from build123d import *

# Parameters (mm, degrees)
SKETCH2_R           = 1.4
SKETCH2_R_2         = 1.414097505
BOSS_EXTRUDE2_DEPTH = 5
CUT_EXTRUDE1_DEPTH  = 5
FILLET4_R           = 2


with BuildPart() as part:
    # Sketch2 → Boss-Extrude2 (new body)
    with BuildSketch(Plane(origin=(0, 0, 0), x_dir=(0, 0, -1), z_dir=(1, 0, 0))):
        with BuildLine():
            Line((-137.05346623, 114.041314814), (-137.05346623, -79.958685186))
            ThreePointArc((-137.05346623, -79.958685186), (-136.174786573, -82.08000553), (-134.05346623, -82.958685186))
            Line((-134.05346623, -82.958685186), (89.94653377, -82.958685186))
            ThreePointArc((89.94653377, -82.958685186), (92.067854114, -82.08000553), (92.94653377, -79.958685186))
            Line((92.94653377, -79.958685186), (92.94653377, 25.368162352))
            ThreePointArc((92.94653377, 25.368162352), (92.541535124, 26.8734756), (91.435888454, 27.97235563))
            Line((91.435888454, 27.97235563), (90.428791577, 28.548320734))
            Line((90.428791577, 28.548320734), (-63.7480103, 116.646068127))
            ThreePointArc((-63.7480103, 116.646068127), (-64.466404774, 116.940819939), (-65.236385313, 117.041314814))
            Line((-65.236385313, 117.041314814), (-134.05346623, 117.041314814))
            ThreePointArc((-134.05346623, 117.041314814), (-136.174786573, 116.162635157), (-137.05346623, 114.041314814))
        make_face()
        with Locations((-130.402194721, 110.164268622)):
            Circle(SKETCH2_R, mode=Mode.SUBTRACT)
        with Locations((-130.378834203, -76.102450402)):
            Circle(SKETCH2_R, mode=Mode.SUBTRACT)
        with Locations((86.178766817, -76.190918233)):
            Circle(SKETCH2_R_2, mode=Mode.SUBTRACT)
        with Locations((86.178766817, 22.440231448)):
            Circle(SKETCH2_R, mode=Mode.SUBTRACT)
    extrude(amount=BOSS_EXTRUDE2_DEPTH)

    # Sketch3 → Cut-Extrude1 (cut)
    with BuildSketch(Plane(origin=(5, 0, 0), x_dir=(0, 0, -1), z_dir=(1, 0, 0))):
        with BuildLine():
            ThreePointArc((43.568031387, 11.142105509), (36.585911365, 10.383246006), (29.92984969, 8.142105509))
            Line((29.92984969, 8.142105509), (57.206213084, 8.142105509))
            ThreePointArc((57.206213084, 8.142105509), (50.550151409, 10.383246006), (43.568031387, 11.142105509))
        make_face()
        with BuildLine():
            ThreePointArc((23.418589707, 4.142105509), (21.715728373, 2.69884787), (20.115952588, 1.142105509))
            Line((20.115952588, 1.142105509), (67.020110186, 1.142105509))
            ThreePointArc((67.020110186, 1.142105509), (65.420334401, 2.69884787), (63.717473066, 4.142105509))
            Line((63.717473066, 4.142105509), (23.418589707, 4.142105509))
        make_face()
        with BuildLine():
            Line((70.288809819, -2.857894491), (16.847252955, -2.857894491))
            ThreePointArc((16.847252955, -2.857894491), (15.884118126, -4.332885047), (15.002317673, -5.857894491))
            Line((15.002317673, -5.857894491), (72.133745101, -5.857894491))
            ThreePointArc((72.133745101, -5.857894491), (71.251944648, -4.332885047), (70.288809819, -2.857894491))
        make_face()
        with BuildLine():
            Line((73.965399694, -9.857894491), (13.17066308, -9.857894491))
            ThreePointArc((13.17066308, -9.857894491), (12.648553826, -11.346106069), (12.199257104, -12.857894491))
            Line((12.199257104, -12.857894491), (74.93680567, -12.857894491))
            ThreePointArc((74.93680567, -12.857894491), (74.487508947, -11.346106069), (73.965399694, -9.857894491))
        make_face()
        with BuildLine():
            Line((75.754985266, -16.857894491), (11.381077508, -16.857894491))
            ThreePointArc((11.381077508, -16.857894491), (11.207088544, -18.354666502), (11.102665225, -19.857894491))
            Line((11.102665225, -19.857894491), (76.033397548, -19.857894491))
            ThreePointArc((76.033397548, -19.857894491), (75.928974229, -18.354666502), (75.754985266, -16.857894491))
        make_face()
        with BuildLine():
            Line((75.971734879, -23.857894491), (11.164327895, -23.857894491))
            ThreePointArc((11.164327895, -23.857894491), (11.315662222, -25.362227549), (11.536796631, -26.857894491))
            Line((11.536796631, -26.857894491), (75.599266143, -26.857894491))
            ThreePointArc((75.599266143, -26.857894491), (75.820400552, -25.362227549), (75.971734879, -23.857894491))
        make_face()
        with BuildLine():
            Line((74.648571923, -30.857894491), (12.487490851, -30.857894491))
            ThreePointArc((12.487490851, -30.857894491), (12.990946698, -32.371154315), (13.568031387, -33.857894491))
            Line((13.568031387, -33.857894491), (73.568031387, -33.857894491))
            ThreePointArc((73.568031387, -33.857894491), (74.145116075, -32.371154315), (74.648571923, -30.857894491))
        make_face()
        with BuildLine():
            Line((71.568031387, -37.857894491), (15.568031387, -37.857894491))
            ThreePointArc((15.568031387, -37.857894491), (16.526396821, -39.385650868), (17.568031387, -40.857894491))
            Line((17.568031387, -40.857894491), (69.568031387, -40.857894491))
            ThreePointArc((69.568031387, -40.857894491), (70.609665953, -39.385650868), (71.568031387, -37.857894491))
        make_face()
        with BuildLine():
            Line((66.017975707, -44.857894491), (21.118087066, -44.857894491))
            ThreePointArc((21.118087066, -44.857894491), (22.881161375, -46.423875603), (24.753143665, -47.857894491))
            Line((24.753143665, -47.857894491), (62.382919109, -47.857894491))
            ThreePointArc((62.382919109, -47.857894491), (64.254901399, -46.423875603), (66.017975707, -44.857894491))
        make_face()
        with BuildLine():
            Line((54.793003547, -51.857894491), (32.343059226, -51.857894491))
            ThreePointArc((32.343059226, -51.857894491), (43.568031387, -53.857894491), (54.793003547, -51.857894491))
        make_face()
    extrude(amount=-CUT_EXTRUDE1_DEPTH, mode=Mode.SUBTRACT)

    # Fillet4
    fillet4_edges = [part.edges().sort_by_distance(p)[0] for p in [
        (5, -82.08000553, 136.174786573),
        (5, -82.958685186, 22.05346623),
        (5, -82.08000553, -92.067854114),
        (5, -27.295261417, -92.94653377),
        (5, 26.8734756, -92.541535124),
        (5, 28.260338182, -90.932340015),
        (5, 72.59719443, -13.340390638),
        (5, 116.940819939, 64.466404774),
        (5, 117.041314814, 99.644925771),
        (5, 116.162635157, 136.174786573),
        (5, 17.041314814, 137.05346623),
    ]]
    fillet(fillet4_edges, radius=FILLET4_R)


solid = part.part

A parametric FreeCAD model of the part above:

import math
import FreeCAD as App
import Part
import Sketcher
from FreeCAD import Vector
Q = App.Units.Quantity


def edges_at(feature, points):
    """Names of the edges that pass closest to the given points."""
    edges = feature.Shape.Edges
    near = lambda p: min(range(len(edges)), key=lambda i: edges[i].distToShape(Part.Vertex(*p))[0])
    return sorted({f"Edge{near(p) + 1}" for p in points})

doc = App.newDocument("Part")
body = doc.addObject("PartDesign::Body", "Body")

# Sketch on YZ plane
sketch1 = body.newObject("Sketcher::SketchObject", "Sketch")
sketch1.AttachmentSupport = (doc.getObject("YZ_Plane"), [""])
sketch1.MapMode = "FlatFace"
sketch1.addGeometry(Part.LineSegment(Vector(114, 137.1, 0), Vector(-80, 137.1, 0)), False)
sketch1.addGeometry(Part.ArcOfCircle(Part.Circle(Vector(-80, 134.1, 0), Vector(0, 0, 1), 3), math.radians(90), math.radians(180)), False)
sketch1.addGeometry(Part.LineSegment(Vector(-83, 134.1, 0), Vector(-83, -89.9, 0)), False)
sketch1.addGeometry(Part.ArcOfCircle(Part.Circle(Vector(-80, -89.9, 0), Vector(0, 0, 1), 3), math.radians(180), math.radians(270)), False)
sketch1.addGeometry(Part.LineSegment(Vector(-80, -92.9, 0), Vector(25.4, -92.9, 0)), False)
sketch1.addGeometry(Part.ArcOfCircle(Part.Circle(Vector(25.4, -89.9, 0), Vector(0, 0, 1), 3), math.radians(-90), math.radians(-30)), False)
sketch1.addGeometry(Part.LineSegment(Vector(28, -91.4, 0), Vector(28.5, -90.4, 0)), False)
sketch1.addGeometry(Part.LineSegment(Vector(28.5, -90.4, 0), Vector(116.6, 63.7, 0)), False)
sketch1.addGeometry(Part.ArcOfCircle(Part.Circle(Vector(114, 65.2, 0), Vector(0, 0, 1), 3), math.radians(-30), math.radians(0)), False)
sketch1.addGeometry(Part.LineSegment(Vector(117, 65.2, 0), Vector(117, 134.1, 0)), False)
sketch1.addGeometry(Part.ArcOfCircle(Part.Circle(Vector(114, 134.1, 0), Vector(0, 0, 1), 3), math.radians(0), math.radians(90)), False)
sketch1.addGeometry(Part.Circle(Vector(-76.1, 130.4, 0), Vector(0, 0, 1), 1.4), False)
sketch1.addGeometry(Part.Circle(Vector(-76.2, -86.2, 0), Vector(0, 0, 1), 1.4), False)
sketch1.addGeometry(Part.Circle(Vector(110.2, 130.4, 0), Vector(0, 0, 1), 1.4), False)
sketch1.addGeometry(Part.Circle(Vector(22.4, -86.2, 0), Vector(0, 0, 1), 1.4), False)
sketch1.addConstraint(Sketcher.Constraint("Tangent", 0, 2, 1, 1))
sketch1.addConstraint(Sketcher.Constraint("Tangent", 1, 2, 2, 1))
sketch1.addConstraint(Sketcher.Constraint("Tangent", 2, 2, 3, 1))
sketch1.addConstraint(Sketcher.Constraint("Tangent", 3, 2, 4, 1))
sketch1.addConstraint(Sketcher.Constraint("Tangent", 4, 2, 5, 1))
sketch1.addConstraint(Sketcher.Constraint("Tangent", 5, 2, 6, 1))
sketch1.addConstraint(Sketcher.Constraint("Coincident", 6, 2, 7, 1))
sketch1.addConstraint(Sketcher.Constraint("Tangent", 7, 2, 8, 1))
sketch1.addConstraint(Sketcher.Constraint("Tangent", 8, 2, 9, 1))
sketch1.addConstraint(Sketcher.Constraint("Tangent", 9, 2, 10, 1))
sketch1.addConstraint(Sketcher.Constraint("Tangent", 10, 2, 0, 1))
sketch1.addConstraint(Sketcher.Constraint("Horizontal", 0))
sketch1.addConstraint(Sketcher.Constraint("Vertical", 2))
sketch1.addConstraint(Sketcher.Constraint("Horizontal", 4))
sketch1.addConstraint(Sketcher.Constraint("Vertical", 9))
sketch1.addConstraint(Sketcher.Constraint("Equal", 1, 3))
sketch1.addConstraint(Sketcher.Constraint("Equal", 3, 5))
sketch1.addConstraint(Sketcher.Constraint("Equal", 5, 8))
sketch1.addConstraint(Sketcher.Constraint("Equal", 8, 10))
sketch1.addConstraint(Sketcher.Constraint("Equal", 11, 13))
sketch1.addConstraint(Sketcher.Constraint("Equal", 13, 14))
sketch1.addConstraint(Sketcher.Constraint("Horizontal", 12, 3, 14, 3))
sketch1.addConstraint(Sketcher.Constraint("Radius", 1, Q("3 mm")))
sketch1.addConstraint(Sketcher.Constraint("Diameter", 11, Q("2.8 mm")))
sketch1.addConstraint(Sketcher.Constraint("DistanceX", 0, 2, 0, 1, Q("194 mm")))
sketch1.addConstraint(Sketcher.Constraint("DistanceY", 2, 2, 2, 1, Q("224 mm")))
sketch1.addConstraint(Sketcher.Constraint("Diameter", 12, Q("2.828195 mm")))
sketch1.addConstraint(Sketcher.Constraint("DistanceY", 9, 1, 9, 2, Q("68.817081 mm")))
sketch1.addConstraint(Sketcher.Constraint("DistanceY", 12, 3, 11, 3, Q("216.557601 mm")))
sketch1.addConstraint(Sketcher.Constraint("DistanceX", 13, 3, 7, 2, Q("6.4818 mm")))
sketch1.addConstraint(Sketcher.Constraint("DistanceY", 6, 2, 7, 2, Q("154.176802 mm")))
sketch1.addConstraint(Sketcher.Constraint("DistanceX", 4, 1, 4, 2, Q("105.326848 mm")))
sketch1.addConstraint(Sketcher.Constraint("DistanceX", 11, 3, -1, 1, Q("76.10245 mm")))
sketch1.addConstraint(Sketcher.Constraint("DistanceX", 12, 3, -1, 1, Q("76.190918 mm")))
sketch1.addConstraint(Sketcher.Constraint("DistanceX", -1, 1, 13, 3, Q("110.164269 mm")))
sketch1.addConstraint(Sketcher.Constraint("DistanceX", -1, 1, 14, 3, Q("22.440231 mm")))
sketch1.addConstraint(Sketcher.Constraint("DistanceY", 5, 2, -1, 1, Q("91.435888 mm")))
sketch1.addConstraint(Sketcher.Constraint("DistanceX", -1, 1, 6, 2, Q("28.548321 mm")))
sketch1.addConstraint(Sketcher.Constraint("DistanceY", 8, 3, 11, 3, Q("65.142449 mm")))
sketch1.addConstraint(Sketcher.Constraint("DistanceY", 13, 3, 10, 3, Q("3.651272 mm")))
pad1 = body.newObject("PartDesign::Pad", "Pad")
pad1.Profile = sketch1
pad1.Length = 5

# Sketch on YZ plane
sketch2 = body.newObject("Sketcher::SketchObject", "Sketch001")
sketch2.AttachmentSupport = (doc.getObject("YZ_Plane"), [""])
sketch2.MapMode = "FlatFace"
sketch2.AttachmentOffset = App.Placement(Vector(0, 0, 5), App.Rotation())
sketch2.addGeometry(Part.ArcOfCircle(Part.Circle(Vector(-21.4, -43.6, 0), Vector(0, 0, 1), 32.5), math.radians(0), math.radians(25)), False)
sketch2.addGeometry(Part.LineSegment(Vector(8.1, -29.9, 0), Vector(8.1, -57.2, 0)), False)
sketch2.addGeometry(Part.ArcOfCircle(Part.Circle(Vector(-21.4, -43.6, 0), Vector(0, 0, 1), 32.5), math.radians(-25), math.radians(0)), False)
sketch2.addGeometry(Part.ArcOfCircle(Part.Circle(Vector(-21.4, -43.6, 0), Vector(0, 0, 1), 32.5), math.radians(38.31), math.radians(46.19)), False)
sketch2.addGeometry(Part.LineSegment(Vector(1.1, -20.1, 0), Vector(1.1, -67, 0)), False)
sketch2.addGeometry(Part.ArcOfCircle(Part.Circle(Vector(-21.4, -43.6, 0), Vector(0, 0, 1), 32.5), math.radians(-46.19), math.radians(-38.31)), False)
sketch2.addGeometry(Part.LineSegment(Vector(4.1, -63.7, 0), Vector(4.1, -23.4, 0)), False)
sketch2.addGeometry(Part.LineSegment(Vector(-2.9, -70.3, 0), Vector(-2.9, -16.8, 0)), False)
sketch2.addGeometry(Part.ArcOfCircle(Part.Circle(Vector(-21.4, -43.6, 0), Vector(0, 0, 1), 32.5), math.radians(55.3), math.radians(61.52)), False)
sketch2.addGeometry(Part.LineSegment(Vector(-5.9, -15, 0), Vector(-5.9, -72.1, 0)), False)
sketch2.addGeometry(Part.ArcOfCircle(Part.Circle(Vector(-21.4, -43.6, 0), Vector(0, 0, 1), 32.5), math.radians(-61.52), math.radians(-55.3)), False)
sketch2.addGeometry(Part.LineSegment(Vector(-9.9, -74, 0), Vector(-9.9, -13.2, 0)), False)
sketch2.addGeometry(Part.ArcOfCircle(Part.Circle(Vector(-21.4, -43.6, 0), Vector(0, 0, 1), 32.5), math.radians(69.28), math.radians(74.84)), False)
sketch2.addGeometry(Part.LineSegment(Vector(-12.9, -12.2, 0), Vector(-12.9, -74.9, 0)), False)
sketch2.addGeometry(Part.ArcOfCircle(Part.Circle(Vector(-21.4, -43.6, 0), Vector(0, 0, 1), 32.5), math.radians(-74.84), math.radians(-69.28)), False)
sketch2.addGeometry(Part.LineSegment(Vector(-16.9, -75.8, 0), Vector(-16.9, -11.4, 0)), False)
sketch2.addGeometry(Part.ArcOfCircle(Part.Circle(Vector(-21.4, -43.6, 0), Vector(0, 0, 1), 32.5), math.radians(82.04), math.radians(87.35)), False)
sketch2.addGeometry(Part.LineSegment(Vector(-19.9, -11.1, 0), Vector(-19.9, -76, 0)), False)
sketch2.addGeometry(Part.ArcOfCircle(Part.Circle(Vector(-21.4, -43.6, 0), Vector(0, 0, 1), 32.5), math.radians(-87.35), math.radians(-82.04)), False)
sketch2.addGeometry(Part.LineSegment(Vector(-23.9, -76, 0), Vector(-23.9, -11.2, 0)), False)
sketch2.addGeometry(Part.ArcOfCircle(Part.Circle(Vector(-21.4, -43.6, 0), Vector(0, 0, 1), 32.5), math.radians(94.41), math.radians(99.74)), False)
sketch2.addGeometry(Part.LineSegment(Vector(-26.9, -11.5, 0), Vector(-26.9, -75.6, 0)), False)
sketch2.addGeometry(Part.ArcOfCircle(Part.Circle(Vector(-21.4, -43.6, 0), Vector(0, 0, 1), 32.5), math.radians(-99.74), math.radians(-94.41)), False)
sketch2.addGeometry(Part.LineSegment(Vector(-30.9, -74.6, 0), Vector(-30.9, -12.5, 0)), False)
sketch2.addGeometry(Part.ArcOfCircle(Part.Circle(Vector(-21.4, -43.6, 0), Vector(0, 0, 1), 32.5), math.radians(107), math.radians(112.62)), False)
sketch2.addGeometry(Part.LineSegment(Vector(-33.9, -13.6, 0), Vector(-33.9, -73.6, 0)), False)
sketch2.addGeometry(Part.ArcOfCircle(Part.Circle(Vector(-21.4, -43.6, 0), Vector(0, 0, 1), 32.5), math.radians(-112.62), math.radians(-107)), False)
sketch2.addGeometry(Part.LineSegment(Vector(-37.9, -71.6, 0), Vector(-37.9, -15.6, 0)), False)
sketch2.addGeometry(Part.ArcOfCircle(Part.Circle(Vector(-21.4, -43.6, 0), Vector(0, 0, 1), 32.5), math.radians(120.51), math.radians(126.87)), False)
sketch2.addGeometry(Part.LineSegment(Vector(-40.9, -17.6, 0), Vector(-40.9, -69.6, 0)), False)
sketch2.addGeometry(Part.ArcOfCircle(Part.Circle(Vector(-21.4, -43.6, 0), Vector(0, 0, 1), 32.5), math.radians(-126.87), math.radians(-120.51)), False)
sketch2.addGeometry(Part.LineSegment(Vector(-44.9, -66, 0), Vector(-44.9, -21.1, 0)), False)
sketch2.addGeometry(Part.ArcOfCircle(Part.Circle(Vector(-21.4, -43.6, 0), Vector(0, 0, 1), 32.5), math.radians(136.31), math.radians(144.63)), False)
sketch2.addGeometry(Part.LineSegment(Vector(-47.9, -24.8, 0), Vector(-47.9, -62.4, 0)), False)
sketch2.addGeometry(Part.ArcOfCircle(Part.Circle(Vector(-21.4, -43.6, 0), Vector(0, 0, 1), 32.5), math.radians(-144.63), math.radians(-136.31)), False)
sketch2.addGeometry(Part.LineSegment(Vector(-51.9, -54.8, 0), Vector(-51.9, -32.3, 0)), False)
sketch2.addGeometry(Part.ArcOfCircle(Part.Circle(Vector(-21.4, -43.6, 0), Vector(0, 0, 1), 32.5), math.radians(160), math.radians(200)), False)
sketch2.addConstraint(Sketcher.Constraint("Coincident", 0, 2, 1, 1))
sketch2.addConstraint(Sketcher.Constraint("Coincident", 1, 2, 2, 1))
sketch2.addConstraint(Sketcher.Constraint("Tangent", 2, 2, 0, 1))
sketch2.addConstraint(Sketcher.Constraint("Coincident", 3, 2, 4, 1))
sketch2.addConstraint(Sketcher.Constraint("Coincident", 4, 2, 5, 1))
sketch2.addConstraint(Sketcher.Constraint("Coincident", 5, 2, 6, 1))
sketch2.addConstraint(Sketcher.Constraint("Coincident", 6, 2, 3, 1))
sketch2.addConstraint(Sketcher.Constraint("Coincident", 7, 2, 8, 1))
sketch2.addConstraint(Sketcher.Constraint("Coincident", 8, 2, 9, 1))
sketch2.addConstraint(Sketcher.Constraint("Coincident", 9, 2, 10, 1))
sketch2.addConstraint(Sketcher.Constraint("Coincident", 10, 2, 7, 1))
sketch2.addConstraint(Sketcher.Constraint("Coincident", 11, 2, 12, 1))
sketch2.addConstraint(Sketcher.Constraint("Coincident", 12, 2, 13, 1))
sketch2.addConstraint(Sketcher.Constraint("Coincident", 13, 2, 14, 1))
sketch2.addConstraint(Sketcher.Constraint("Coincident", 14, 2, 11, 1))
sketch2.addConstraint(Sketcher.Constraint("Coincident", 15, 2, 16, 1))
sketch2.addConstraint(Sketcher.Constraint("Coincident", 16, 2, 17, 1))
sketch2.addConstraint(Sketcher.Constraint("Coincident", 17, 2, 18, 1))
sketch2.addConstraint(Sketcher.Constraint("Coincident", 18, 2, 15, 1))
sketch2.addConstraint(Sketcher.Constraint("Coincident", 19, 2, 20, 1))
sketch2.addConstraint(Sketcher.Constraint("Coincident", 20, 2, 21, 1))
sketch2.addConstraint(Sketcher.Constraint("Coincident", 21, 2, 22, 1))
sketch2.addConstraint(Sketcher.Constraint("Coincident", 22, 2, 19, 1))
sketch2.addConstraint(Sketcher.Constraint("Coincident", 23, 2, 24, 1))
sketch2.addConstraint(Sketcher.Constraint("Coincident", 24, 2, 25, 1))
sketch2.addConstraint(Sketcher.Constraint("Coincident", 25, 2, 26, 1))
sketch2.addConstraint(Sketcher.Constraint("Coincident", 26, 2, 23, 1))
sketch2.addConstraint(Sketcher.Constraint("Coincident", 27, 2, 28, 1))
sketch2.addConstraint(Sketcher.Constraint("Coincident", 28, 2, 29, 1))
sketch2.addConstraint(Sketcher.Constraint("Coincident", 29, 2, 30, 1))
sketch2.addConstraint(Sketcher.Constraint("Coincident", 30, 2, 27, 1))
sketch2.addConstraint(Sketcher.Constraint("Coincident", 31, 2, 32, 1))
sketch2.addConstraint(Sketcher.Constraint("Coincident", 32, 2, 33, 1))
sketch2.addConstraint(Sketcher.Constraint("Coincident", 33, 2, 34, 1))
sketch2.addConstraint(Sketcher.Constraint("Coincident", 34, 2, 31, 1))
sketch2.addConstraint(Sketcher.Constraint("Coincident", 35, 1, 36, 2))
sketch2.addConstraint(Sketcher.Constraint("Coincident", 36, 1, 35, 2))
sketch2.addConstraint(Sketcher.Constraint("Vertical", 1))
sketch2.addConstraint(Sketcher.Constraint("Vertical", 4))
sketch2.addConstraint(Sketcher.Constraint("Vertical", 6))
sketch2.addConstraint(Sketcher.Constraint("Vertical", 7))
sketch2.addConstraint(Sketcher.Constraint("Vertical", 9))
sketch2.addConstraint(Sketcher.Constraint("Vertical", 11))
sketch2.addConstraint(Sketcher.Constraint("Vertical", 13))
sketch2.addConstraint(Sketcher.Constraint("Vertical", 15))
sketch2.addConstraint(Sketcher.Constraint("Vertical", 17))
sketch2.addConstraint(Sketcher.Constraint("Vertical", 19))
sketch2.addConstraint(Sketcher.Constraint("Vertical", 21))
sketch2.addConstraint(Sketcher.Constraint("Vertical", 23))
sketch2.addConstraint(Sketcher.Constraint("Vertical", 25))
sketch2.addConstraint(Sketcher.Constraint("Vertical", 27))
sketch2.addConstraint(Sketcher.Constraint("Vertical", 29))
sketch2.addConstraint(Sketcher.Constraint("Vertical", 31))
sketch2.addConstraint(Sketcher.Constraint("Vertical", 33))
sketch2.addConstraint(Sketcher.Constraint("Vertical", 35))
sketch2.addConstraint(Sketcher.Constraint("Coincident", 3, 3, 0, 3))
sketch2.addConstraint(Sketcher.Constraint("Coincident", 5, 3, 0, 3))
sketch2.addConstraint(Sketcher.Constraint("Coincident", 8, 3, 0, 3))
sketch2.addConstraint(Sketcher.Constraint("Coincident", 10, 3, 0, 3))
sketch2.addConstraint(Sketcher.Constraint("Coincident", 12, 3, 0, 3))
sketch2.addConstraint(Sketcher.Constraint("Coincident", 14, 3, 0, 3))
sketch2.addConstraint(Sketcher.Constraint("Coincident", 16, 3, 0, 3))
sketch2.addConstraint(Sketcher.Constraint("Coincident", 18, 3, 0, 3))
sketch2.addConstraint(Sketcher.Constraint("Coincident", 20, 3, 0, 3))
sketch2.addConstraint(Sketcher.Constraint("Coincident", 22, 3, 0, 3))
sketch2.addConstraint(Sketcher.Constraint("Coincident", 24, 3, 0, 3))
sketch2.addConstraint(Sketcher.Constraint("Coincident", 26, 3, 0, 3))
sketch2.addConstraint(Sketcher.Constraint("Coincident", 28, 3, 0, 3))
sketch2.addConstraint(Sketcher.Constraint("Coincident", 30, 3, 0, 3))
sketch2.addConstraint(Sketcher.Constraint("Coincident", 32, 3, 0, 3))
sketch2.addConstraint(Sketcher.Constraint("Coincident", 34, 3, 0, 3))
sketch2.addConstraint(Sketcher.Constraint("Coincident", 36, 3, 0, 3))
sketch2.addConstraint(Sketcher.Constraint("Equal", 0, 2))
sketch2.addConstraint(Sketcher.Constraint("Equal", 2, 3))
sketch2.addConstraint(Sketcher.Constraint("Equal", 3, 5))
sketch2.addConstraint(Sketcher.Constraint("Equal", 5, 8))
sketch2.addConstraint(Sketcher.Constraint("Equal", 8, 10))
sketch2.addConstraint(Sketcher.Constraint("Equal", 10, 12))
sketch2.addConstraint(Sketcher.Constraint("Equal", 12, 14))
sketch2.addConstraint(Sketcher.Constraint("Equal", 14, 16))
sketch2.addConstraint(Sketcher.Constraint("Equal", 16, 18))
sketch2.addConstraint(Sketcher.Constraint("Equal", 18, 20))
sketch2.addConstraint(Sketcher.Constraint("Equal", 20, 22))
sketch2.addConstraint(Sketcher.Constraint("Equal", 22, 24))
sketch2.addConstraint(Sketcher.Constraint("Equal", 24, 26))
sketch2.addConstraint(Sketcher.Constraint("Equal", 26, 28))
sketch2.addConstraint(Sketcher.Constraint("Equal", 28, 30))
sketch2.addConstraint(Sketcher.Constraint("Equal", 30, 32))
sketch2.addConstraint(Sketcher.Constraint("Equal", 32, 34))
sketch2.addConstraint(Sketcher.Constraint("Equal", 34, 36))
sketch2.addConstraint(Sketcher.Constraint("Horizontal", 36, 3, 2, 2))
sketch2.addConstraint(Sketcher.Constraint("Radius", 0, Q("32.5 mm")))
sketch2.addConstraint(Sketcher.Constraint("DistanceY", 25, 2, 25, 1, Q("60 mm")))
sketch2.addConstraint(Sketcher.Constraint("DistanceY", 27, 1, 27, 2, Q("56 mm")))
sketch2.addConstraint(Sketcher.Constraint("DistanceY", 29, 2, 29, 1, Q("52 mm")))
sketch2.addConstraint(Sketcher.Constraint("DistanceX", 0, 2, 2, 2, Q("3 mm")))
sketch2.addConstraint(Sketcher.Constraint("DistanceX", 3, 2, 0, 2, Q("7 mm")))
sketch2.addConstraint(Sketcher.Constraint("DistanceX", 4, 2, 5, 2, Q("3 mm")))
sketch2.addConstraint(Sketcher.Constraint("DistanceX", 7, 2, 3, 2, Q("4 mm")))
sketch2.addConstraint(Sketcher.Constraint("DistanceX", 8, 2, 7, 2, Q("3 mm")))
sketch2.addConstraint(Sketcher.Constraint("DistanceX", 11, 2, 8, 2, Q("4 mm")))
sketch2.addConstraint(Sketcher.Constraint("DistanceX", 12, 2, 11, 2, Q("3 mm")))
sketch2.addConstraint(Sketcher.Constraint("DistanceX", 15, 2, 12, 2, Q("4 mm")))
sketch2.addConstraint(Sketcher.Constraint("DistanceX", 16, 2, 15, 2, Q("3 mm")))
sketch2.addConstraint(Sketcher.Constraint("DistanceX", 19, 2, 16, 2, Q("4 mm")))
sketch2.addConstraint(Sketcher.Constraint("DistanceX", 20, 2, 19, 2, Q("3 mm")))
sketch2.addConstraint(Sketcher.Constraint("DistanceX", 23, 2, 20, 2, Q("4 mm")))
sketch2.addConstraint(Sketcher.Constraint("DistanceX", 31, 2, 28, 2, Q("4 mm")))
sketch2.addConstraint(Sketcher.Constraint("DistanceX", 32, 2, 31, 2, Q("3 mm")))
sketch2.addConstraint(Sketcher.Constraint("DistanceX", 35, 1, 33, 2, Q("4 mm")))
sketch2.addConstraint(Sketcher.Constraint("DistanceY", 14, 2, -1, 1, Q("73.9654 mm")))
sketch2.addConstraint(Sketcher.Constraint("DistanceX", 0, 3, -1, 1, Q("21.357894 mm")))
pocket1 = body.newObject("PartDesign::Pocket", "Pocket")
pocket1.Profile = sketch2
pocket1.Length = 5
doc.recompute()

fillet = body.newObject("PartDesign::Fillet", "Fillet")
fillet.Base = (pocket1, edges_at(pocket1, [
    (5, -82.08, 136.175),
    (5, -82.959, 22.053),
    (5, -82.08, -92.068),
    (5, -27.295, -92.947),
    (5, 26.873, -92.542),
    (5, 28.26, -90.932),
    (5, 72.597, -13.34),
    (5, 116.941, 64.466),
    (5, 117.041, 99.645),
    (5, 116.163, 136.175),
    (5, 17.041, 137.053),
]))
fillet.Radius = 2

doc.recompute()
